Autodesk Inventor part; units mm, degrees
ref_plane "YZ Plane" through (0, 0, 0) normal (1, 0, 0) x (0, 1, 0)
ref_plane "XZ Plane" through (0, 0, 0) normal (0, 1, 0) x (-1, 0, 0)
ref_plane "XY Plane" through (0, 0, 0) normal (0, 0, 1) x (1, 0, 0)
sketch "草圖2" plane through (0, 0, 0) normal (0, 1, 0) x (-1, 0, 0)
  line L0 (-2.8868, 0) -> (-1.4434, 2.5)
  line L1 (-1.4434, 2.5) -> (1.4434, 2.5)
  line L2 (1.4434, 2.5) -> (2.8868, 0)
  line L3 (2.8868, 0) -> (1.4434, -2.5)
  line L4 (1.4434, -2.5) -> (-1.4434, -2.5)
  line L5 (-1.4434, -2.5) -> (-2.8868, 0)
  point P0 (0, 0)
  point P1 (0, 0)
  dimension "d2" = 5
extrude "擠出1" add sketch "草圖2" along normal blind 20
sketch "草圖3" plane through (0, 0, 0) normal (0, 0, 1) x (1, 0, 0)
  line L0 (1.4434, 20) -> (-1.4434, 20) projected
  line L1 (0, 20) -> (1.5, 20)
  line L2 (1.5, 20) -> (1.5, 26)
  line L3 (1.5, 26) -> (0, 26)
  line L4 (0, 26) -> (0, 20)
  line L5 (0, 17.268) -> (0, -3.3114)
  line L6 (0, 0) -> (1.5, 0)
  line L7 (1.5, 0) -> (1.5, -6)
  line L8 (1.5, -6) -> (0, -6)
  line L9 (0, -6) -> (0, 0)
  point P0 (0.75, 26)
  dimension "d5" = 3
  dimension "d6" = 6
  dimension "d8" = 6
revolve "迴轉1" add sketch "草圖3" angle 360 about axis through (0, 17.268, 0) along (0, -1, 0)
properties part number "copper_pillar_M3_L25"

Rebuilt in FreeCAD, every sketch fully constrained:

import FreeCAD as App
import Part
import Sketcher

V = App.Vector
Q = App.Units.Quantity

doc = App.newDocument("Part")
params = doc.addObject("Spreadsheet::Sheet", "Params")
for row, (alias, value) in enumerate([
    ("pad1_length", "20 mm"),
    ("sketch2_height", "6 mm"),
    ("sketch2_width", "1.5 mm"),
    ("revolution_angle", "360 deg"),
], start=1):
    params.set(f"A{row}", alias)
    params.set(f"B{row}", "=" + value)
    params.setAlias(f"B{row}", alias)

body = doc.addObject("PartDesign::Body", "Body")

# Sketch on XZ plane
sketch1 = doc.addObject("Sketcher::SketchObject", "Sketch")
body.addObject(sketch1)
sketch1.AttachmentSupport = (doc.XZ_Plane, [""])
sketch1.MapMode = "FlatFace"
sketch1.addGeometry(Part.LineSegment(V(1.4434, 2.5, 0), V(2.8868, 0, 0)), False)
sketch1.addGeometry(Part.LineSegment(V(2.8868, 0, 0), V(1.4434, -2.5, 0)), False)
sketch1.addGeometry(Part.LineSegment(V(1.4434, -2.5, 0), V(-1.4434, -2.5, 0)), False)
sketch1.addGeometry(Part.LineSegment(V(-1.4434, -2.5, 0), V(-2.8868, 0, 0)), False)
sketch1.addGeometry(Part.LineSegment(V(-2.8868, 0, 0), V(-1.4434, 2.5, 0)), False)
sketch1.addGeometry(Part.LineSegment(V(-1.4434, 2.5, 0), V(1.4434, 2.5, 0)), False)
sketch1.addConstraint(Sketcher.Constraint("Coincident", 0, 2, 1, 1))
sketch1.addConstraint(Sketcher.Constraint("Coincident", 1, 2, 2, 1))
sketch1.addConstraint(Sketcher.Constraint("Coincident", 2, 2, 3, 1))
sketch1.addConstraint(Sketcher.Constraint("Coincident", 3, 2, 4, 1))
sketch1.addConstraint(Sketcher.Constraint("Coincident", 4, 2, 5, 1))
sketch1.addConstraint(Sketcher.Constraint("Coincident", 5, 2, 0, 1))
sketch1.addConstraint(Sketcher.Constraint("Horizontal", 2))
sketch1.addConstraint(Sketcher.Constraint("Horizontal", 5))
sketch1.addConstraint(Sketcher.Constraint("Symmetric", 0, 2, 3, 2, -1, 1))
sketch1.addConstraint(Sketcher.Constraint("Symmetric", 1, 2, 4, 2, -1, 1))
sketch1.addConstraint(Sketcher.Constraint("PointOnObject", 0, 2, -1))
sketch1.addConstraint(Sketcher.Constraint("Parallel", 0, 3))
sketch1.addConstraint(Sketcher.Constraint("Vertical", 2, 2, 4, 2))
sketch1.addConstraint(Sketcher.Constraint("DistanceY", 2, 2, 4, 2, Q("5 mm")))
sketch1.addConstraint(Sketcher.Constraint("Angle", 0, Q("-59.9996 deg")))
sketch1.addConstraint(Sketcher.Constraint("DistanceX", 2, 2, 2, 1, Q("2.8868 mm")))
pad1 = doc.addObject("PartDesign::Pad", "Pad")
body.addObject(pad1)
pad1.Profile = sketch1
pad1.setExpression("Length", "Params.pad1_length")
pad1.Reversed = True

# Sketch on XY plane
sketch2 = doc.addObject("Sketcher::SketchObject", "Sketch001")
body.addObject(sketch2)
sketch2.AttachmentSupport = (doc.XY_Plane, [""])
sketch2.MapMode = "FlatFace"
sketch2.addGeometry(Part.LineSegment(V(0, 20, 0), V(1.5, 20, 0)), False)
sketch2.addGeometry(Part.LineSegment(V(1.5, 20, 0), V(1.5, 26, 0)), False)
sketch2.addGeometry(Part.LineSegment(V(1.5, 26, 0), V(0, 26, 0)), False)
sketch2.addGeometry(Part.LineSegment(V(0, 26, 0), V(0, 20, 0)), False)
sketch2.addGeometry(Part.LineSegment(V(1.5, 0, 0), V(0, 0, 0)), False)
sketch2.addGeometry(Part.LineSegment(V(0, 0, 0), V(0, -6, 0)), False)
sketch2.addGeometry(Part.LineSegment(V(0, -6, 0), V(1.5, -6, 0)), False)
sketch2.addGeometry(Part.LineSegment(V(1.5, -6, 0), V(1.5, 0, 0)), False)
sketch2.addConstraint(Sketcher.Constraint("Coincident", 0, 2, 1, 1))
sketch2.addConstraint(Sketcher.Constraint("Coincident", 1, 2, 2, 1))
sketch2.addConstraint(Sketcher.Constraint("Coincident", 2, 2, 3, 1))
sketch2.addConstraint(Sketcher.Constraint("Coincident", 3, 2, 0, 1))
sketch2.addConstraint(Sketcher.Constraint("Coincident", 4, 2, 5, 1))
sketch2.addConstraint(Sketcher.Constraint("Coincident", 5, 2, 6, 1))
sketch2.addConstraint(Sketcher.Constraint("Coincident", 6, 2, 7, 1))
sketch2.addConstraint(Sketcher.Constraint("Coincident", 7, 2, 4, 1))
sketch2.addConstraint(Sketcher.Constraint("Horizontal", 0))
sketch2.addConstraint(Sketcher.Constraint("Vertical", 1))
sketch2.addConstraint(Sketcher.Constraint("Horizontal", 2))
sketch2.addConstraint(Sketcher.Constraint("Vertical", 3))
sketch2.addConstraint(Sketcher.Constraint("Horizontal", 4))
sketch2.addConstraint(Sketcher.Constraint("Vertical", 5))
sketch2.addConstraint(Sketcher.Constraint("Horizontal", 6))
sketch2.addConstraint(Sketcher.Constraint("Vertical", 7))
sketch2.addConstraint(Sketcher.Constraint("Coincident", 4, 2, -1, 1))
sketch2.addConstraint(Sketcher.Constraint("PointOnObject", 2, 2, -2))
sketch2.addConstraint(Sketcher.Constraint("Vertical", 1, 2, 6, 2))
sketch2.addConstraint(Sketcher.Constraint("Equal", 3, 5))
sketch2.addConstraint(Sketcher.Constraint("DistanceY", 1, 1, 1, 2, Q("6 mm")))
sketch2.addConstraint(Sketcher.Constraint("DistanceX", 0, 1, 0, 2, Q("1.5 mm")))
sketch2.addConstraint(Sketcher.Constraint("DistanceY", -1, 1, 0, 2, Q("20 mm")))
sketch2.setExpression("Constraints[20]", "Params.sketch2_height")
sketch2.setExpression("Constraints[21]", "Params.sketch2_width")
revolution = doc.addObject("PartDesign::Revolution", "Revolution")
body.addObject(revolution)
revolution.Profile = sketch2
revolution.ReferenceAxis = (sketch2, ["V_Axis"])
revolution.setExpression("Angle", "Params.revolution_angle")

doc.recompute()
